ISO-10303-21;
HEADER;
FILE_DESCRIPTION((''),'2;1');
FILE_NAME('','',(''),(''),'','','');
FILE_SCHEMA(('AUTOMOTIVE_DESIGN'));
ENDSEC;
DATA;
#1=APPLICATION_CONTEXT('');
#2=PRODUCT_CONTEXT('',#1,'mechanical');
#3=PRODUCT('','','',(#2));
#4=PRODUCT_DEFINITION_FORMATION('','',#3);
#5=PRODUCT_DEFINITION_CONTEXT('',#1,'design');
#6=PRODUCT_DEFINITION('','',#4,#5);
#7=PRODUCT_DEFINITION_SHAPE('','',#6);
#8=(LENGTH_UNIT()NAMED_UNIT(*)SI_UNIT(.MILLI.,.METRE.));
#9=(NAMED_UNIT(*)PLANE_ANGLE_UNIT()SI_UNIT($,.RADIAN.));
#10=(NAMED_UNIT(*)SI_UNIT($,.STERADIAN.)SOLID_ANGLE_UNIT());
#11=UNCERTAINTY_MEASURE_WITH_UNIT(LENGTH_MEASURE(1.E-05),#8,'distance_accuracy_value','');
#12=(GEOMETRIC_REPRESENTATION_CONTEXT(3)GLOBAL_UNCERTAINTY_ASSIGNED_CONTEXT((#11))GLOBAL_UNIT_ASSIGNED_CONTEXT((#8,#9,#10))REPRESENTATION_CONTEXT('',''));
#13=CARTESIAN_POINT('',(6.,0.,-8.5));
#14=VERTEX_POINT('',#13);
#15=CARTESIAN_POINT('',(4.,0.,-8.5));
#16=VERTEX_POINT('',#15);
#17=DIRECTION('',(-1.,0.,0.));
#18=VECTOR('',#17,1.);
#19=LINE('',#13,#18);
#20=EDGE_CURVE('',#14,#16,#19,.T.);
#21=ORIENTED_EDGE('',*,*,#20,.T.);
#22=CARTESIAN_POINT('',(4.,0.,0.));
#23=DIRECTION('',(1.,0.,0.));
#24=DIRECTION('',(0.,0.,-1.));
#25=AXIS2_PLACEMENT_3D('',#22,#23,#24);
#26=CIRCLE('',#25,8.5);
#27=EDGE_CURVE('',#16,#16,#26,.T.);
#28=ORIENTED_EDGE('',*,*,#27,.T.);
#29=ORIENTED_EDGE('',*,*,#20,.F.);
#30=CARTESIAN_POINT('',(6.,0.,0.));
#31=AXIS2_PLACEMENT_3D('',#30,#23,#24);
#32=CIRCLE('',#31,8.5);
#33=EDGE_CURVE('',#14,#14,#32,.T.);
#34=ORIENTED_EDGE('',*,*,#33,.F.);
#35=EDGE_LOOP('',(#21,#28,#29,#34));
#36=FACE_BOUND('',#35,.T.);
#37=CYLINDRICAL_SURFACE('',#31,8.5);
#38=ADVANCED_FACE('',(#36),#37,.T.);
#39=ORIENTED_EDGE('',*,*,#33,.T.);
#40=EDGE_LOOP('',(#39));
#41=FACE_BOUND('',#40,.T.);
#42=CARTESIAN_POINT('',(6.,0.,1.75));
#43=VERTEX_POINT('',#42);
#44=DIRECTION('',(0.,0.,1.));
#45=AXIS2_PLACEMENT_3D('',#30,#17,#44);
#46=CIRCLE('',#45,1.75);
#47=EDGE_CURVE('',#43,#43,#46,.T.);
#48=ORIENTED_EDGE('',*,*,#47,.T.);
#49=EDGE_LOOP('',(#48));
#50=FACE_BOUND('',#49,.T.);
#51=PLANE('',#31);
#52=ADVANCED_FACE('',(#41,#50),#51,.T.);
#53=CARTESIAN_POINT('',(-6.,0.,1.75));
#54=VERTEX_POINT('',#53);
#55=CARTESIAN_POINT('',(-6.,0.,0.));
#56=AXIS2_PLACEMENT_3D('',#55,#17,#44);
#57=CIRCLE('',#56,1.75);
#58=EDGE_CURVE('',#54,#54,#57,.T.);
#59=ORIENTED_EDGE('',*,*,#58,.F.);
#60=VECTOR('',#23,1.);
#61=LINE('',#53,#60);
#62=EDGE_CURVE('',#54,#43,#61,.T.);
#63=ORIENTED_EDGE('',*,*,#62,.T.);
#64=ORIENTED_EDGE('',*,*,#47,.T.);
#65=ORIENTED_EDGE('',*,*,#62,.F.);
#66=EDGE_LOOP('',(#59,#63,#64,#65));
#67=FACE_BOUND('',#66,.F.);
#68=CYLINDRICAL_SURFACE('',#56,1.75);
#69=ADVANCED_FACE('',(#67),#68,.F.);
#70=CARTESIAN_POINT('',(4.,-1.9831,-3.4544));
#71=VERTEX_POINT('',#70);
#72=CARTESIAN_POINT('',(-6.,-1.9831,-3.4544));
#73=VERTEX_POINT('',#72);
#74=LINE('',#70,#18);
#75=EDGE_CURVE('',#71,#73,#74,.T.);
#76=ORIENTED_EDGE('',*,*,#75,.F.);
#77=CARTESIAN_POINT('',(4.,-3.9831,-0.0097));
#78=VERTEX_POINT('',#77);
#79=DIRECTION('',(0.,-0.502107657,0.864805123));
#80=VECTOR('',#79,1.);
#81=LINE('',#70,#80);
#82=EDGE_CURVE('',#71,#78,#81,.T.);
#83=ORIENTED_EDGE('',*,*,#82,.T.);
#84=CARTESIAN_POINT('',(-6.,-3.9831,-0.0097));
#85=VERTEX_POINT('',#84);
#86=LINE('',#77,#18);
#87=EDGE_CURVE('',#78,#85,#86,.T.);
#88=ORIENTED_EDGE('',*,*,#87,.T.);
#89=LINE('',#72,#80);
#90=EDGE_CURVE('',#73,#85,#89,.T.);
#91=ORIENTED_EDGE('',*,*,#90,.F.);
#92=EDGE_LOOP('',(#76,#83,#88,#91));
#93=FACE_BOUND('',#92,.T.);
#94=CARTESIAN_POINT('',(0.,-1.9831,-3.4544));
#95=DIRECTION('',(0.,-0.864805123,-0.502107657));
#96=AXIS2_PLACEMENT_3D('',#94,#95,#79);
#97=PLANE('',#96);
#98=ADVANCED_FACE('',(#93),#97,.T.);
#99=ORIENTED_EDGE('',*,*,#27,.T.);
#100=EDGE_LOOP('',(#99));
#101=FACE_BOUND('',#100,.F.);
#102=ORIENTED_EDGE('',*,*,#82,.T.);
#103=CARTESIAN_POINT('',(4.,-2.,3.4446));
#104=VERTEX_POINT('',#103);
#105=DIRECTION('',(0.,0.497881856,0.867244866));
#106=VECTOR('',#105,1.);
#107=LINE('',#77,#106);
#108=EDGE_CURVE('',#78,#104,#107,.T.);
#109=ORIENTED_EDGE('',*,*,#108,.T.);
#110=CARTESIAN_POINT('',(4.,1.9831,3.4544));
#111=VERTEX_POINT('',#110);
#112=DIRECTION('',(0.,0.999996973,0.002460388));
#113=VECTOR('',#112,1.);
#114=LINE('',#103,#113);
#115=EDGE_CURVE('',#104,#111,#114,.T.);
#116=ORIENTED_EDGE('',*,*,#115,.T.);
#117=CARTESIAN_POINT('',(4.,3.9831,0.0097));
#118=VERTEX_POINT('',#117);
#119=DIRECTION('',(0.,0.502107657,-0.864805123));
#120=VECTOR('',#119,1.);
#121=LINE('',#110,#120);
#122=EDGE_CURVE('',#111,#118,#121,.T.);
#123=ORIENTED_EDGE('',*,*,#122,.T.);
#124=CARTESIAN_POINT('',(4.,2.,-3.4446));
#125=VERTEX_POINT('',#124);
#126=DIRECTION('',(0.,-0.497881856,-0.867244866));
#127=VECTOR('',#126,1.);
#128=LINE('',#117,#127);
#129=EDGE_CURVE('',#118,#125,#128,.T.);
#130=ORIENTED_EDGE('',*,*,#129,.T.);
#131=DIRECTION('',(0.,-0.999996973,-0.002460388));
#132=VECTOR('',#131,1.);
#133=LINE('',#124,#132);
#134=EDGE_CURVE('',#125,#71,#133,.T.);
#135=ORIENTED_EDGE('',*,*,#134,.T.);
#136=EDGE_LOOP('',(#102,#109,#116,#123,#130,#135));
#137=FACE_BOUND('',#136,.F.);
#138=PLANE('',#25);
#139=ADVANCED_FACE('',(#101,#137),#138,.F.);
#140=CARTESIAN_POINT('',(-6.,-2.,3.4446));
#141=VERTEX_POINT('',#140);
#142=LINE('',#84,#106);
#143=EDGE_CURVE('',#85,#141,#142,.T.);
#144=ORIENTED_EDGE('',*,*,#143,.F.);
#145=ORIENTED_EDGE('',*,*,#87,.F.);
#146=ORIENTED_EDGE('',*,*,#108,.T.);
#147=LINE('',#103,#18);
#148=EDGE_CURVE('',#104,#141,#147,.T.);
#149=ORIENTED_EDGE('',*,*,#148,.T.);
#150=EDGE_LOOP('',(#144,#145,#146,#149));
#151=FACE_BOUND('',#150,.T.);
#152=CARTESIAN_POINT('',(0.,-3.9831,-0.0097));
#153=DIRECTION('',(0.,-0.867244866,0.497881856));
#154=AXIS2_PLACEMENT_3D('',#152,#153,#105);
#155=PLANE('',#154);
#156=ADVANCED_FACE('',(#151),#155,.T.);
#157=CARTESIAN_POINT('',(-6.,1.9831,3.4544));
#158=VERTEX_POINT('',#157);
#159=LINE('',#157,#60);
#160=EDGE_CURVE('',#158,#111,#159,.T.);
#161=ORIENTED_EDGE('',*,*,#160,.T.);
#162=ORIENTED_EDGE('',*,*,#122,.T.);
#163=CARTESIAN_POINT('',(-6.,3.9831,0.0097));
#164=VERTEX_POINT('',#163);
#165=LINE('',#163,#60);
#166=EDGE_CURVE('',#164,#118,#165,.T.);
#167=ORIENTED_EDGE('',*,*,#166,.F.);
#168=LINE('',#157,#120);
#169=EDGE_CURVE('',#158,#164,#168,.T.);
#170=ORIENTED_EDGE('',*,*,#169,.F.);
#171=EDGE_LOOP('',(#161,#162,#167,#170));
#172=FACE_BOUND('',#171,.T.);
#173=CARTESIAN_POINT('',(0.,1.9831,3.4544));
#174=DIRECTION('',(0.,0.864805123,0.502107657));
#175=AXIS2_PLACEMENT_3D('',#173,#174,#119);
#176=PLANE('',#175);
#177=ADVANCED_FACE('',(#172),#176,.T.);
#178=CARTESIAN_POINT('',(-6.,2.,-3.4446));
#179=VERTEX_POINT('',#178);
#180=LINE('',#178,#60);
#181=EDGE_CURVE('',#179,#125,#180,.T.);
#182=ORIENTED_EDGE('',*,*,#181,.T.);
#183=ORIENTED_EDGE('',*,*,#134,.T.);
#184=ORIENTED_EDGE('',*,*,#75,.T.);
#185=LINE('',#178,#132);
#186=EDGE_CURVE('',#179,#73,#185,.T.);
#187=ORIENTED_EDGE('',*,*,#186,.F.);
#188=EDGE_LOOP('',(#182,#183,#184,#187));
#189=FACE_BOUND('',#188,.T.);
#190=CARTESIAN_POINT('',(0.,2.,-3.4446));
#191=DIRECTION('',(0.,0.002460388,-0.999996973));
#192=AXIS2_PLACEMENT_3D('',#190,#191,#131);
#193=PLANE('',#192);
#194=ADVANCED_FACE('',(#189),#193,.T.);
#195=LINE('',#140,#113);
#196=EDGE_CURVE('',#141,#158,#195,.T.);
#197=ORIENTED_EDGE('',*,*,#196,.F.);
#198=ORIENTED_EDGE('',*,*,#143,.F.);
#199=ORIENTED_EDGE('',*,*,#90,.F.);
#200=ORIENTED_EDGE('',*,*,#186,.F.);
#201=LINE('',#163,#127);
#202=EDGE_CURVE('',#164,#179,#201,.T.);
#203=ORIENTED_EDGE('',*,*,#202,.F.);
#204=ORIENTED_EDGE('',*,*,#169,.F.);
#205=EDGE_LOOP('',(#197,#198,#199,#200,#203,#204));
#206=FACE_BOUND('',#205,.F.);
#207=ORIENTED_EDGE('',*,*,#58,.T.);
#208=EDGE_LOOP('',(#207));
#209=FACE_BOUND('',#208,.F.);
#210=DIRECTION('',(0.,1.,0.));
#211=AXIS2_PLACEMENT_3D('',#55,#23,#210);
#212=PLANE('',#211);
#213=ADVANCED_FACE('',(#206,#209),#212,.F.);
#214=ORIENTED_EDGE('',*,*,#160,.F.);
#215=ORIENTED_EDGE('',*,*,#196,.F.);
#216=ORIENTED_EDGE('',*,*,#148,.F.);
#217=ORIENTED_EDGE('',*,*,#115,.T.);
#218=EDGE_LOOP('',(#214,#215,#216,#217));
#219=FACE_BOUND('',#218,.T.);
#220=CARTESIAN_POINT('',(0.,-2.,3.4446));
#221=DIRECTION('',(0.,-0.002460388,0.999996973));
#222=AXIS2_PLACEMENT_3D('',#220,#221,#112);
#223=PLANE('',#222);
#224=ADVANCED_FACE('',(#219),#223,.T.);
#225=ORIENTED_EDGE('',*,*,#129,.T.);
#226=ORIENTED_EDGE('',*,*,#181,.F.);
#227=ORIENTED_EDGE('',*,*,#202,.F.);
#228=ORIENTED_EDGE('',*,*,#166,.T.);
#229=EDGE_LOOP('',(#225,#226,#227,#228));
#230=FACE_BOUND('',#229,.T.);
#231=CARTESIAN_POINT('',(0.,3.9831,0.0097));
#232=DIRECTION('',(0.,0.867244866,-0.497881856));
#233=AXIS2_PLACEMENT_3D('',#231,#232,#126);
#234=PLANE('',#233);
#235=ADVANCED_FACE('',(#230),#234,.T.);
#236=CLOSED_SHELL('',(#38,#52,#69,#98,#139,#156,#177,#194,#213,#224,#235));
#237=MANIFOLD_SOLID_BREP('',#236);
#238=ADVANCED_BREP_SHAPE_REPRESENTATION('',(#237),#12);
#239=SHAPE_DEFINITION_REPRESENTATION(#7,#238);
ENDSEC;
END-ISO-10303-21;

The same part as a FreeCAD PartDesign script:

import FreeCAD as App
import Part
import Sketcher

V = App.Vector
Q = App.Units.Quantity

doc = App.newDocument("Part")
params = doc.addObject("Spreadsheet::Sheet", "Params")
for row, (alias, value) in enumerate([
    ("pad1_length", "4 mm"),
    ("pad1_length2", "6 mm"),
    ("pad2_length", "2 mm"),
    ("sketch3_diameter", "12 mm"),
    ("pad3_length", "2 mm"),
    ("sketch4_diameter", "3 mm"),
    ("pocket1_length", "6 mm"),
    ("sketch5_diameter", "17 mm"),
    ("pad4_length", "2 mm"),
    ("sketch6_diameter", "3.5 mm"),
    ("pocket2_length", "12.25 mm"),
], start=1):
    params.set(f"A{row}", alias)
    params.set(f"B{row}", "=" + value)
    params.setAlias(f"B{row}", alias)

body = doc.addObject("PartDesign::Body", "Body")

sketch1 = body.newObject("Sketcher::SketchObject", "Sketch")
sketch1.AttachmentSupport = (doc.getObject("YZ_Plane"), [""])
sketch1.MapMode = "FlatFace"
sketch1.addGeometry([
    Part.LineSegment(V(-1.9831, -3.4544, 0), V(2, -3.4446, 0)),
    Part.LineSegment(V(2, -3.4446, 0), V(3.9831, 0.0097, 0)),
    Part.LineSegment(V(3.9831, 0.0097, 0), V(1.9831, 3.4544, 0)),
    Part.LineSegment(V(1.9831, 3.4544, 0), V(-2, 3.4446, 0)),
    Part.LineSegment(V(-2, 3.4446, 0), V(-3.9831, -0.0097, 0)),
    Part.LineSegment(V(-3.9831, -0.0097, 0), V(-1.9831, -3.4544, 0)),
], False)
sketch1.addConstraint([
    Sketcher.Constraint("Coincident", 0, 2, 1, 1),
    Sketcher.Constraint("Coincident", 1, 2, 2, 1),
    Sketcher.Constraint("Coincident", 2, 2, 3, 1),
    Sketcher.Constraint("Coincident", 3, 2, 4, 1),
    Sketcher.Constraint("Coincident", 4, 2, 5, 1),
    Sketcher.Constraint("Coincident", 5, 2, 0, 1),
    Sketcher.Constraint("Symmetric", 0, 2, 3, 2, -1, 1),
    Sketcher.Constraint("Symmetric", 1, 2, 4, 2, -1, 1),
    Sketcher.Constraint("Symmetric", 2, 2, 5, 2, -1, 1),
    Sketcher.Constraint("Equal", 0, 1),
    Sketcher.Constraint("Equal", 1, 2),
    Sketcher.Constraint("DistanceX", 3, 2, 0, 2, Q("4 mm")),
    Sketcher.Constraint("DistanceX", 2, 2, 1, 2, Q("2 mm")),
    Sketcher.Constraint("Angle", 0, Q("0.141 deg")),
    Sketcher.Constraint("Angle", 1, Q("60.14 deg")),
])
pad1 = body.newObject("PartDesign::Pad", "Pad")
pad1.Profile = sketch1
pad1.Type = "TwoLengths"
pad1.setExpression("Length", "Params.pad1_length")
pad1.setExpression("Length2", "Params.pad1_length2")

sketch2 = body.newObject("Sketcher::SketchObject", "Sketch001")
sketch2.AttachmentSupport = (doc.getObject("YZ_Plane"), [""])
sketch2.MapMode = "FlatFace"
sketch2.AttachmentOffset = App.Placement(V(0, 0, 4), App.Rotation())
sketch2.addGeometry(Part.Circle(V(0, 0, 0), V(0, 0, 1), 3.9832), False)
sketch2.addConstraint([
    Sketcher.Constraint("Coincident", 0, 3, -1, 1),
    Sketcher.Constraint("Diameter", 0, Q("7.9664 mm")),
])
pad2 = body.newObject("PartDesign::Pad", "Pad001")
pad2.Profile = sketch2
pad2.setExpression("Length", "Params.pad2_length")

sketch3 = body.newObject("Sketcher::SketchObject", "Sketch002")
sketch3.AttachmentSupport = (doc.getObject("YZ_Plane"), [""])
sketch3.MapMode = "FlatFace"
sketch3.AttachmentOffset = App.Placement(V(0, 0, 4), App.Rotation())
sketch3.addGeometry(Part.Circle(V(0, 0, 0), V(0, 0, 1), 6), False)
sketch3.addConstraint([
    Sketcher.Constraint("Coincident", 0, 3, -1, 1),
    Sketcher.Constraint("Diameter", 0, Q("12 mm")),
])
sketch3.setExpression("Constraints[1]", "Params.sketch3_diameter")
pad3 = body.newObject("PartDesign::Pad", "Pad002")
pad3.Profile = sketch3
pad3.setExpression("Length", "Params.pad3_length")

sketch4 = body.newObject("Sketcher::SketchObject", "Sketch003")
sketch4.AttachmentSupport = (doc.getObject("YZ_Plane"), [""])
sketch4.MapMode = "FlatFace"
sketch4.AttachmentOffset = App.Placement(V(0, 0, 6), App.Rotation())
sketch4.addGeometry(Part.Circle(V(0, 0, 0), V(0, 0, 1), 1.5), False)
sketch4.addConstraint([
    Sketcher.Constraint("Coincident", 0, 3, -1, 1),
    Sketcher.Constraint("Diameter", 0, Q("3 mm")),
])
sketch4.setExpression("Constraints[1]", "Params.sketch4_diameter")
pocket1 = body.newObject("PartDesign::Pocket", "Pocket")
pocket1.Profile = sketch4
pocket1.setExpression("Length", "Params.pocket1_length")

sketch5 = body.newObject("Sketcher::SketchObject", "Sketch004")
sketch5.AttachmentSupport = (doc.getObject("YZ_Plane"), [""])
sketch5.MapMode = "FlatFace"
sketch5.AttachmentOffset = App.Placement(V(0, 0, 6), App.Rotation())
sketch5.addGeometry(Part.Circle(V(0, 0, 0), V(0, 0, 1), 8.5), False)
sketch5.addConstraint([
    Sketcher.Constraint("Coincident", 0, 3, -1, 1),
    Sketcher.Constraint("Diameter", 0, Q("17 mm")),
])
sketch5.setExpression("Constraints[1]", "Params.sketch5_diameter")
pad4 = body.newObject("PartDesign::Pad", "Pad003")
pad4.Profile = sketch5
pad4.setExpression("Length", "Params.pad4_length")
pad4.Reversed = True

sketch6 = body.newObject("Sketcher::SketchObject", "Sketch005")
sketch6.AttachmentSupport = (doc.getObject("YZ_Plane"), [""])
sketch6.MapMode = "FlatFace"
sketch6.AttachmentOffset = App.Placement(V(0, 0, -6), App.Rotation())
sketch6.addGeometry(Part.Circle(V(0, 0, 0), V(0, 0, 1), 1.75), False)
sketch6.addConstraint([
    Sketcher.Constraint("Coincident", 0, 3, -1, 1),
    Sketcher.Constraint("Diameter", 0, Q("3.5 mm")),
])
sketch6.setExpression("Constraints[1]", "Params.sketch6_diameter")
pocket2 = body.newObject("PartDesign::Pocket", "Pocket001")
pocket2.Profile = sketch6
pocket2.setExpression("Length", "Params.pocket2_length")
pocket2.Reversed = True

doc.recompute()
